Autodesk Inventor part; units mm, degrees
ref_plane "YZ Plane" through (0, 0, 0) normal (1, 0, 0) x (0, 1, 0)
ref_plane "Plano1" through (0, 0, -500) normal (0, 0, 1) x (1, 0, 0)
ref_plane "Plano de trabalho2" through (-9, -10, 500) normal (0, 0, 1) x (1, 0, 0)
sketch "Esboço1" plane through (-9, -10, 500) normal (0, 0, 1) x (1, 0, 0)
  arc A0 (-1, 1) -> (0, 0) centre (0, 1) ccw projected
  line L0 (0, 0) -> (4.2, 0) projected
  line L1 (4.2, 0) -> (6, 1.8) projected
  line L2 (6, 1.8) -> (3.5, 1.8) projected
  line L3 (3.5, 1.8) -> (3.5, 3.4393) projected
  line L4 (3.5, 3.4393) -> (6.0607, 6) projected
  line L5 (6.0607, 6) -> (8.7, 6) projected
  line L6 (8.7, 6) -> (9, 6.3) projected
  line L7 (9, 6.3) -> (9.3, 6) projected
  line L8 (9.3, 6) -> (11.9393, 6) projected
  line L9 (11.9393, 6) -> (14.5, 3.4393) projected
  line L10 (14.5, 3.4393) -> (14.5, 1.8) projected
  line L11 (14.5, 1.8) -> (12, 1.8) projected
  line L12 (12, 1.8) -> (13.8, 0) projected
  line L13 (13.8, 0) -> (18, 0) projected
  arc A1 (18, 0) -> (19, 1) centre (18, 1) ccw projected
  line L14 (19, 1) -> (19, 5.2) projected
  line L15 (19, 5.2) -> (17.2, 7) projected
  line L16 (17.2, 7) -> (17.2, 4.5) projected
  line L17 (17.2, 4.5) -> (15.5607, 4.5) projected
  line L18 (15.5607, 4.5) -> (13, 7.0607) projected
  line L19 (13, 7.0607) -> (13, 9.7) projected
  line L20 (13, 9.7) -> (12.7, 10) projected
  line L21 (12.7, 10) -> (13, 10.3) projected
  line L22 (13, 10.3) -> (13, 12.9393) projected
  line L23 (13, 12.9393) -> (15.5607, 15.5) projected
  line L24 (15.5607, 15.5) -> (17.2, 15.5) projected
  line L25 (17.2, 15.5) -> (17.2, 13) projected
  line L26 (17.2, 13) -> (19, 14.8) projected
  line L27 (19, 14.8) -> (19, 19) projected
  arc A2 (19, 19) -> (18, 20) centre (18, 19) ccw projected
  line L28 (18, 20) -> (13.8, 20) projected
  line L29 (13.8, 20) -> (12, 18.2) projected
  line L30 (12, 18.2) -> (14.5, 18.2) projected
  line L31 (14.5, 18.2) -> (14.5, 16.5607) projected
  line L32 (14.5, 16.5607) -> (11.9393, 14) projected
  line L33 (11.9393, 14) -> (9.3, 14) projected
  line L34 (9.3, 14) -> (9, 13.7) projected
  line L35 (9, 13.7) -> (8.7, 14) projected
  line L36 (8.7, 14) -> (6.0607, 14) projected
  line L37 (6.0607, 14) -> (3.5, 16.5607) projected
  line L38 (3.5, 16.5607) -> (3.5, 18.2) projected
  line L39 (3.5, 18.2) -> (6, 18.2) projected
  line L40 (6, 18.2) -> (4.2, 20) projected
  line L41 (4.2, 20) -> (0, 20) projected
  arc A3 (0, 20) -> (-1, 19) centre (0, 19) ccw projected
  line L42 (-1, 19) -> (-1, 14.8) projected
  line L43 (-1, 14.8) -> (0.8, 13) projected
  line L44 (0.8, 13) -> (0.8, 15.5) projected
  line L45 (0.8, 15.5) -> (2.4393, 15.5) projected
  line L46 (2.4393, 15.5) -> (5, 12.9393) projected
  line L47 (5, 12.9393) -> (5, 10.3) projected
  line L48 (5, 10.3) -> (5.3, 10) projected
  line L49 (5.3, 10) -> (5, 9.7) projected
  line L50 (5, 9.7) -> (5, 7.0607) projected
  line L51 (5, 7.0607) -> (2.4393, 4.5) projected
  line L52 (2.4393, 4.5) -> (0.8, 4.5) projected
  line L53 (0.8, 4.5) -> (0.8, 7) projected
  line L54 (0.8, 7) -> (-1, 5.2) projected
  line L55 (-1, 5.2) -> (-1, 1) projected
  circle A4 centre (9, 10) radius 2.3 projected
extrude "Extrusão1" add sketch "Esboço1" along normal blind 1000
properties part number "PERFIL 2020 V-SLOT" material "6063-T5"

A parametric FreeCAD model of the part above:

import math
import FreeCAD as App
import Part
import Sketcher

V = App.Vector

doc = App.newDocument("Part")
body = doc.addObject("PartDesign::Body", "Body")

# Sketch on XY plane
sketch1 = body.newObject("Sketcher::SketchObject", "Sketch")
sketch1.AttachmentSupport = (doc.getObject("XY_Plane"), [""])
sketch1.MapMode = "FlatFace"
sketch1.AttachmentOffset = App.Placement(V(0, 0, 500), App.Rotation())
sketch1.addGeometry([
    Part.LineSegment(V(-10, -4.8, 0), V(-10, -9, 0)),  # 0
    Part.ArcOfCircle(Part.Circle(V(-9, -9, 0), V(0, 0, 1), 1), math.radians(180), math.radians(270)),  # 1
    Part.LineSegment(V(-9, -10, 0), V(-4.8, -10, 0)),  # 2
    Part.LineSegment(V(-4.8, -10, 0), V(-3, -8.2, 0)),  # 3
    Part.LineSegment(V(-3, -8.2, 0), V(-5.5, -8.2, 0)),  # 4
    Part.LineSegment(V(-5.5, -8.2, 0), V(-5.5, -6.56, 0)),  # 5
    Part.LineSegment(V(-5.5, -6.56, 0), V(-2.94, -4, 0)),  # 6
    Part.LineSegment(V(-2.94, -4, 0), V(-0.3, -4, 0)),  # 7
    Part.LineSegment(V(-0.3, -4, 0), V(0, -3.7, 0)),  # 8
    Part.LineSegment(V(0, -3.7, 0), V(0.3, -4, 0)),  # 9
    Part.LineSegment(V(0.3, -4, 0), V(2.94, -4, 0)),  # 10
    Part.LineSegment(V(2.94, -4, 0), V(5.5, -6.56, 0)),  # 11
    Part.LineSegment(V(5.5, -6.56, 0), V(5.5, -8.2, 0)),  # 12
    Part.LineSegment(V(5.5, -8.2, 0), V(3, -8.2, 0)),  # 13
    Part.LineSegment(V(3, -8.2, 0), V(4.8, -10, 0)),  # 14
    Part.LineSegment(V(4.8, -10, 0), V(9, -10, 0)),  # 15
    Part.ArcOfCircle(Part.Circle(V(9, -9, 0), V(0, 0, 1), 1), math.radians(-90), math.radians(0)),  # 16
    Part.LineSegment(V(10, -9, 0), V(10, -4.8, 0)),  # 17
    Part.LineSegment(V(10, -4.8, 0), V(8.2, -3, 0)),  # 18
    Part.LineSegment(V(8.2, -3, 0), V(8.2, -5.5, 0)),  # 19
    Part.LineSegment(V(8.2, -5.5, 0), V(6.56, -5.5, 0)),  # 20
    Part.LineSegment(V(6.56, -5.5, 0), V(4, -2.94, 0)),  # 21
    Part.LineSegment(V(4, -2.94, 0), V(4, -0.3, 0)),  # 22
    Part.LineSegment(V(4, -0.3, 0), V(3.7, 0, 0)),  # 23
    Part.LineSegment(V(3.7, 0, 0), V(4, 0.3, 0)),  # 24
    Part.LineSegment(V(4, 0.3, 0), V(4, 2.94, 0)),  # 25
    Part.LineSegment(V(4, 2.94, 0), V(6.56, 5.5, 0)),  # 26
    Part.LineSegment(V(6.56, 5.5, 0), V(8.2, 5.5, 0)),  # 27
    Part.LineSegment(V(8.2, 5.5, 0), V(8.2, 3, 0)),  # 28
    Part.LineSegment(V(8.2, 3, 0), V(10, 4.8, 0)),  # 29
    Part.LineSegment(V(10, 4.8, 0), V(10, 9, 0)),  # 30
    Part.ArcOfCircle(Part.Circle(V(9, 9, 0), V(0, 0, 1), 1), math.radians(0), math.radians(90)),  # 31
    Part.LineSegment(V(9, 10, 0), V(4.8, 10, 0)),  # 32
    Part.LineSegment(V(4.8, 10, 0), V(3, 8.2, 0)),  # 33
    Part.LineSegment(V(3, 8.2, 0), V(5.5, 8.2, 0)),  # 34
    Part.LineSegment(V(5.5, 8.2, 0), V(5.5, 6.56, 0)),  # 35
    Part.LineSegment(V(5.5, 6.56, 0), V(2.94, 4, 0)),  # 36
    Part.LineSegment(V(2.94, 4, 0), V(0.3, 4, 0)),  # 37
    Part.LineSegment(V(0.3, 4, 0), V(0, 3.7, 0)),  # 38
    Part.LineSegment(V(0, 3.7, 0), V(-0.3, 4, 0)),  # 39
    Part.LineSegment(V(-0.3, 4, 0), V(-2.94, 4, 0)),  # 40
    Part.LineSegment(V(-2.94, 4, 0), V(-5.5, 6.56, 0)),  # 41
    Part.LineSegment(V(-5.5, 6.56, 0), V(-5.5, 8.2, 0)),  # 42
    Part.LineSegment(V(-5.5, 8.2, 0), V(-3, 8.2, 0)),  # 43
    Part.LineSegment(V(-3, 8.2, 0), V(-4.8, 10, 0)),  # 44
    Part.LineSegment(V(-4.8, 10, 0), V(-9, 10, 0)),  # 45
    Part.ArcOfCircle(Part.Circle(V(-9, 9, 0), V(0, 0, 1), 1), math.radians(90), math.radians(180)),  # 46
    Part.LineSegment(V(-10, 9, 0), V(-10, 4.8, 0)),  # 47
    Part.LineSegment(V(-10, 4.8, 0), V(-8.2, 3, 0)),  # 48
    Part.LineSegment(V(-8.2, 3, 0), V(-8.2, 5.5, 0)),  # 49
    Part.LineSegment(V(-8.2, 5.5, 0), V(-6.56, 5.5, 0)),  # 50
    Part.LineSegment(V(-6.56, 5.5, 0), V(-4, 2.94, 0)),  # 51
    Part.LineSegment(V(-4, 2.94, 0), V(-4, 0.3, 0)),  # 52
    Part.LineSegment(V(-4, 0.3, 0), V(-3.7, 0, 0)),  # 53
    Part.LineSegment(V(-3.7, 0, 0), V(-4, -0.3, 0)),  # 54
    Part.LineSegment(V(-4, -0.3, 0), V(-4, -2.94, 0)),  # 55
    Part.LineSegment(V(-4, -2.94, 0), V(-6.56, -5.5, 0)),  # 56
    Part.LineSegment(V(-6.56, -5.5, 0), V(-8.2, -5.5, 0)),  # 57
    Part.LineSegment(V(-8.2, -5.5, 0), V(-8.2, -3, 0)),  # 58
    Part.LineSegment(V(-8.2, -3, 0), V(-10, -4.8, 0)),  # 59
    Part.Circle(V(0, 0, 0), V(0, 0, 1), 2.3),  # 60
], False)
sketch1.addConstraint([
    Sketcher.Constraint("Tangent", 0, 2, 1, 1),
    Sketcher.Constraint("Tangent", 1, 2, 2, 1),
    Sketcher.Constraint("Coincident", 2, 2, 3, 1),
    Sketcher.Constraint("Coincident", 3, 2, 4, 1),
    Sketcher.Constraint("Coincident", 4, 2, 5, 1),
    Sketcher.Constraint("Coincident", 5, 2, 6, 1),
    Sketcher.Constraint("Coincident", 6, 2, 7, 1),
    Sketcher.Constraint("Coincident", 7, 2, 8, 1),
    Sketcher.Constraint("Coincident", 8, 2, 9, 1),
    Sketcher.Constraint("Coincident", 9, 2, 10, 1),
    Sketcher.Constraint("Coincident", 10, 2, 11, 1),
    Sketcher.Constraint("Coincident", 11, 2, 12, 1),
    Sketcher.Constraint("Coincident", 12, 2, 13, 1),
    Sketcher.Constraint("Coincident", 13, 2, 14, 1),
    Sketcher.Constraint("Coincident", 14, 2, 15, 1),
    Sketcher.Constraint("Tangent", 15, 2, 16, 1),
    Sketcher.Constraint("Tangent", 16, 2, 17, 1),
    Sketcher.Constraint("Coincident", 17, 2, 18, 1),
    Sketcher.Constraint("Coincident", 18, 2, 19, 1),
    Sketcher.Constraint("Coincident", 19, 2, 20, 1),
    Sketcher.Constraint("Coincident", 20, 2, 21, 1),
    Sketcher.Constraint("Coincident", 21, 2, 22, 1),
    Sketcher.Constraint("Coincident", 22, 2, 23, 1),
    Sketcher.Constraint("Coincident", 23, 2, 24, 1),
    Sketcher.Constraint("Coincident", 24, 2, 25, 1),
    Sketcher.Constraint("Coincident", 25, 2, 26, 1),
    Sketcher.Constraint("Coincident", 26, 2, 27, 1),
    Sketcher.Constraint("Coincident", 27, 2, 28, 1),
    Sketcher.Constraint("Coincident", 28, 2, 29, 1),
    Sketcher.Constraint("Coincident", 29, 2, 30, 1),
    Sketcher.Constraint("Tangent", 30, 2, 31, 1),
    Sketcher.Constraint("Tangent", 31, 2, 32, 1),
    Sketcher.Constraint("Coincident", 32, 2, 33, 1),
    Sketcher.Constraint("Coincident", 33, 2, 34, 1),
    Sketcher.Constraint("Coincident", 34, 2, 35, 1),
    Sketcher.Constraint("Coincident", 35, 2, 36, 1),
    Sketcher.Constraint("Coincident", 36, 2, 37, 1),
    Sketcher.Constraint("Coincident", 37, 2, 38, 1),
    Sketcher.Constraint("Coincident", 38, 2, 39, 1),
    Sketcher.Constraint("Coincident", 39, 2, 40, 1),
    Sketcher.Constraint("Coincident", 40, 2, 41, 1),
    Sketcher.Constraint("Coincident", 41, 2, 42, 1),
    Sketcher.Constraint("Coincident", 42, 2, 43, 1),
    Sketcher.Constraint("Coincident", 43, 2, 44, 1),
    Sketcher.Constraint("Coincident", 44, 2, 45, 1),
    Sketcher.Constraint("Tangent", 45, 2, 46, 1),
    Sketcher.Constraint("Tangent", 46, 2, 47, 1),
    Sketcher.Constraint("Coincident", 47, 2, 48, 1),
    Sketcher.Constraint("Coincident", 48, 2, 49, 1),
    Sketcher.Constraint("Coincident", 49, 2, 50, 1),
    Sketcher.Constraint("Coincident", 50, 2, 51, 1),
    Sketcher.Constraint("Coincident", 51, 2, 52, 1),
    Sketcher.Constraint("Coincident", 52, 2, 53, 1),
    Sketcher.Constraint("Coincident", 53, 2, 54, 1),
    Sketcher.Constraint("Coincident", 54, 2, 55, 1),
    Sketcher.Constraint("Coincident", 55, 2, 56, 1),
    Sketcher.Constraint("Coincident", 56, 2, 57, 1),
    Sketcher.Constraint("Coincident", 57, 2, 58, 1),
    Sketcher.Constraint("Coincident", 58, 2, 59, 1),
    Sketcher.Constraint("Coincident", 59, 2, 0, 1),
    Sketcher.Constraint("Vertical", 0),
    Sketcher.Constraint("Horizontal", 2),
    Sketcher.Constraint("Horizontal", 4),
    Sketcher.Constraint("Vertical", 5),
    Sketcher.Constraint("Horizontal", 7),
    Sketcher.Constraint("Horizontal", 10),
    Sketcher.Constraint("Vertical", 12),
    Sketcher.Constraint("Horizontal", 13),
    Sketcher.Constraint("Horizontal", 15),
    Sketcher.Constraint("Vertical", 17),
    Sketcher.Constraint("Vertical", 19),
    Sketcher.Constraint("Horizontal", 20),
    Sketcher.Constraint("Vertical", 22),
    Sketcher.Constraint("Vertical", 25),
    Sketcher.Constraint("Horizontal", 27),
    Sketcher.Constraint("Vertical", 28),
    Sketcher.Constraint("Vertical", 30),
    Sketcher.Constraint("Horizontal", 32),
    Sketcher.Constraint("Horizontal", 34),
    Sketcher.Constraint("Vertical", 35),
    Sketcher.Constraint("Horizontal", 37),
    Sketcher.Constraint("Horizontal", 40),
    Sketcher.Constraint("Vertical", 42),
    Sketcher.Constraint("Horizontal", 43),
    Sketcher.Constraint("Horizontal", 45),
    Sketcher.Constraint("Vertical", 47),
    Sketcher.Constraint("Vertical", 49),
    Sketcher.Constraint("Horizontal", 50),
    Sketcher.Constraint("Vertical", 52),
    Sketcher.Constraint("Vertical", 55),
    Sketcher.Constraint("Horizontal", 57),
    Sketcher.Constraint("Vertical", 58),
    Sketcher.Constraint("Coincident", 60, 3, -1, 1),
    Sketcher.Constraint("Equal", 1, 16),
    Sketcher.Constraint("Equal", 16, 31),
    Sketcher.Constraint("Equal", 31, 46),
    Sketcher.Constraint("Symmetric", 1, 3, 31, 3, -1, 1),
    Sketcher.Constraint("Symmetric", 16, 3, 46, 3, -1, 1),
    Sketcher.Constraint("Symmetric", 3, 2, 33, 2, -1, 1),
    Sketcher.Constraint("Symmetric", 5, 2, 35, 2, -1, 1),
    Sketcher.Constraint("Symmetric", 6, 2, 36, 2, -1, 1),
    Sketcher.Constraint("Symmetric", 8, 2, 38, 2, -1, 1),
    Sketcher.Constraint("Symmetric", 9, 2, 39, 2, -1, 1),
    Sketcher.Constraint("Symmetric", 11, 2, 41, 2, -1, 1),
    Sketcher.Constraint("Symmetric", 13, 2, 43, 2, -1, 1),
    Sketcher.Constraint("Symmetric", 18, 2, 48, 2, -1, 1),
    Sketcher.Constraint("Symmetric", 20, 2, 50, 2, -1, 1),
    Sketcher.Constraint("Symmetric", 21, 2, 51, 2, -1, 1),
    Sketcher.Constraint("Symmetric", 23, 2, 53, 2, -1, 1),
    Sketcher.Constraint("Symmetric", 24, 2, 54, 2, -1, 1),
    Sketcher.Constraint("Symmetric", 26, 2, 56, 2, -1, 1),
    Sketcher.Constraint("Symmetric", 28, 2, 58, 2, -1, 1),
    Sketcher.Constraint("Symmetric", 1, 3, 16, 3, -2),
    Sketcher.Constraint("Symmetric", 7, 2, 9, 2, -2),
    Sketcher.Constraint("Symmetric", 5, 2, 11, 2, -2),
    Sketcher.Constraint("Symmetric", 3, 2, 13, 2, -2),
    Sketcher.Constraint("Symmetric", 28, 2, 48, 2, -2),
    Sketcher.Constraint("Symmetric", 26, 2, 50, 2, -2),
    Sketcher.Constraint("Symmetric", 25, 2, 51, 2, -2),
    Sketcher.Constraint("PointOnObject", 8, 2, -2),
    Sketcher.Constraint("PointOnObject", 23, 2, -1),
    Sketcher.Constraint("Parallel", 3, 6),
    Sketcher.Constraint("Parallel", 6, 8),
    Sketcher.Constraint("Perpendicular", 8, 9),
    Sketcher.Constraint("Parallel", 9, 11),
    Sketcher.Constraint("Parallel", 11, 14),
    Sketcher.Constraint("Parallel", 14, 18),
    Sketcher.Constraint("Parallel", 18, 21),
    Sketcher.Constraint("Parallel", 21, 23),
    Sketcher.Constraint("Perpendicular", 23, 24),
    Sketcher.Constraint("Parallel", 26, 29),
    Sketcher.Constraint("Parallel", 29, 33),
    Sketcher.Constraint("Parallel", 36, 38),
    Sketcher.Constraint("Parallel", 39, 41),
    Sketcher.Constraint("Parallel", 41, 44),
    Sketcher.Constraint("Parallel", 44, 48),
    Sketcher.Constraint("Parallel", 51, 53),
    Sketcher.Constraint("Parallel", 54, 56),
    Sketcher.Constraint("Parallel", 56, 59),
    Sketcher.Constraint("Equal", 45, 0),
    Sketcher.Constraint("Equal", 57, 5),
    Sketcher.Constraint("Equal", 43, 19),
    Sketcher.Constraint("Equal", 40, 22),
    Sketcher.Constraint("Equal", 14, 18),
    Sketcher.Constraint("Equal", 11, 21),
    Sketcher.Constraint("Equal", 9, 23),
    Sketcher.Constraint("Radius", 1, 1.0),
    Sketcher.Constraint("Diameter", 60, 4.6),
    Sketcher.Constraint("DistanceX", 2, 1, 2, 2, 4.2),
    Sketcher.Constraint("DistanceX", 4, 2, 4, 1, 2.5),
    Sketcher.Constraint("DistanceX", 1, 3, -1, 1, 9.0),
    Sketcher.Constraint("DistanceX", 3, 2, -1, 1, 3.0),
    Sketcher.Constraint("DistanceY", 6, 2, -1, 1, 4.0),
    Sketcher.Constraint("DistanceX", 7, 2, -1, 1, 0.3),
    Sketcher.Constraint("DistanceX", 7, 1, 7, 2, 2.6393),
])
pad1 = body.newObject("PartDesign::Pad", "Pad")
pad1.Profile = sketch1
pad1.Length = 1000

doc.recompute()
